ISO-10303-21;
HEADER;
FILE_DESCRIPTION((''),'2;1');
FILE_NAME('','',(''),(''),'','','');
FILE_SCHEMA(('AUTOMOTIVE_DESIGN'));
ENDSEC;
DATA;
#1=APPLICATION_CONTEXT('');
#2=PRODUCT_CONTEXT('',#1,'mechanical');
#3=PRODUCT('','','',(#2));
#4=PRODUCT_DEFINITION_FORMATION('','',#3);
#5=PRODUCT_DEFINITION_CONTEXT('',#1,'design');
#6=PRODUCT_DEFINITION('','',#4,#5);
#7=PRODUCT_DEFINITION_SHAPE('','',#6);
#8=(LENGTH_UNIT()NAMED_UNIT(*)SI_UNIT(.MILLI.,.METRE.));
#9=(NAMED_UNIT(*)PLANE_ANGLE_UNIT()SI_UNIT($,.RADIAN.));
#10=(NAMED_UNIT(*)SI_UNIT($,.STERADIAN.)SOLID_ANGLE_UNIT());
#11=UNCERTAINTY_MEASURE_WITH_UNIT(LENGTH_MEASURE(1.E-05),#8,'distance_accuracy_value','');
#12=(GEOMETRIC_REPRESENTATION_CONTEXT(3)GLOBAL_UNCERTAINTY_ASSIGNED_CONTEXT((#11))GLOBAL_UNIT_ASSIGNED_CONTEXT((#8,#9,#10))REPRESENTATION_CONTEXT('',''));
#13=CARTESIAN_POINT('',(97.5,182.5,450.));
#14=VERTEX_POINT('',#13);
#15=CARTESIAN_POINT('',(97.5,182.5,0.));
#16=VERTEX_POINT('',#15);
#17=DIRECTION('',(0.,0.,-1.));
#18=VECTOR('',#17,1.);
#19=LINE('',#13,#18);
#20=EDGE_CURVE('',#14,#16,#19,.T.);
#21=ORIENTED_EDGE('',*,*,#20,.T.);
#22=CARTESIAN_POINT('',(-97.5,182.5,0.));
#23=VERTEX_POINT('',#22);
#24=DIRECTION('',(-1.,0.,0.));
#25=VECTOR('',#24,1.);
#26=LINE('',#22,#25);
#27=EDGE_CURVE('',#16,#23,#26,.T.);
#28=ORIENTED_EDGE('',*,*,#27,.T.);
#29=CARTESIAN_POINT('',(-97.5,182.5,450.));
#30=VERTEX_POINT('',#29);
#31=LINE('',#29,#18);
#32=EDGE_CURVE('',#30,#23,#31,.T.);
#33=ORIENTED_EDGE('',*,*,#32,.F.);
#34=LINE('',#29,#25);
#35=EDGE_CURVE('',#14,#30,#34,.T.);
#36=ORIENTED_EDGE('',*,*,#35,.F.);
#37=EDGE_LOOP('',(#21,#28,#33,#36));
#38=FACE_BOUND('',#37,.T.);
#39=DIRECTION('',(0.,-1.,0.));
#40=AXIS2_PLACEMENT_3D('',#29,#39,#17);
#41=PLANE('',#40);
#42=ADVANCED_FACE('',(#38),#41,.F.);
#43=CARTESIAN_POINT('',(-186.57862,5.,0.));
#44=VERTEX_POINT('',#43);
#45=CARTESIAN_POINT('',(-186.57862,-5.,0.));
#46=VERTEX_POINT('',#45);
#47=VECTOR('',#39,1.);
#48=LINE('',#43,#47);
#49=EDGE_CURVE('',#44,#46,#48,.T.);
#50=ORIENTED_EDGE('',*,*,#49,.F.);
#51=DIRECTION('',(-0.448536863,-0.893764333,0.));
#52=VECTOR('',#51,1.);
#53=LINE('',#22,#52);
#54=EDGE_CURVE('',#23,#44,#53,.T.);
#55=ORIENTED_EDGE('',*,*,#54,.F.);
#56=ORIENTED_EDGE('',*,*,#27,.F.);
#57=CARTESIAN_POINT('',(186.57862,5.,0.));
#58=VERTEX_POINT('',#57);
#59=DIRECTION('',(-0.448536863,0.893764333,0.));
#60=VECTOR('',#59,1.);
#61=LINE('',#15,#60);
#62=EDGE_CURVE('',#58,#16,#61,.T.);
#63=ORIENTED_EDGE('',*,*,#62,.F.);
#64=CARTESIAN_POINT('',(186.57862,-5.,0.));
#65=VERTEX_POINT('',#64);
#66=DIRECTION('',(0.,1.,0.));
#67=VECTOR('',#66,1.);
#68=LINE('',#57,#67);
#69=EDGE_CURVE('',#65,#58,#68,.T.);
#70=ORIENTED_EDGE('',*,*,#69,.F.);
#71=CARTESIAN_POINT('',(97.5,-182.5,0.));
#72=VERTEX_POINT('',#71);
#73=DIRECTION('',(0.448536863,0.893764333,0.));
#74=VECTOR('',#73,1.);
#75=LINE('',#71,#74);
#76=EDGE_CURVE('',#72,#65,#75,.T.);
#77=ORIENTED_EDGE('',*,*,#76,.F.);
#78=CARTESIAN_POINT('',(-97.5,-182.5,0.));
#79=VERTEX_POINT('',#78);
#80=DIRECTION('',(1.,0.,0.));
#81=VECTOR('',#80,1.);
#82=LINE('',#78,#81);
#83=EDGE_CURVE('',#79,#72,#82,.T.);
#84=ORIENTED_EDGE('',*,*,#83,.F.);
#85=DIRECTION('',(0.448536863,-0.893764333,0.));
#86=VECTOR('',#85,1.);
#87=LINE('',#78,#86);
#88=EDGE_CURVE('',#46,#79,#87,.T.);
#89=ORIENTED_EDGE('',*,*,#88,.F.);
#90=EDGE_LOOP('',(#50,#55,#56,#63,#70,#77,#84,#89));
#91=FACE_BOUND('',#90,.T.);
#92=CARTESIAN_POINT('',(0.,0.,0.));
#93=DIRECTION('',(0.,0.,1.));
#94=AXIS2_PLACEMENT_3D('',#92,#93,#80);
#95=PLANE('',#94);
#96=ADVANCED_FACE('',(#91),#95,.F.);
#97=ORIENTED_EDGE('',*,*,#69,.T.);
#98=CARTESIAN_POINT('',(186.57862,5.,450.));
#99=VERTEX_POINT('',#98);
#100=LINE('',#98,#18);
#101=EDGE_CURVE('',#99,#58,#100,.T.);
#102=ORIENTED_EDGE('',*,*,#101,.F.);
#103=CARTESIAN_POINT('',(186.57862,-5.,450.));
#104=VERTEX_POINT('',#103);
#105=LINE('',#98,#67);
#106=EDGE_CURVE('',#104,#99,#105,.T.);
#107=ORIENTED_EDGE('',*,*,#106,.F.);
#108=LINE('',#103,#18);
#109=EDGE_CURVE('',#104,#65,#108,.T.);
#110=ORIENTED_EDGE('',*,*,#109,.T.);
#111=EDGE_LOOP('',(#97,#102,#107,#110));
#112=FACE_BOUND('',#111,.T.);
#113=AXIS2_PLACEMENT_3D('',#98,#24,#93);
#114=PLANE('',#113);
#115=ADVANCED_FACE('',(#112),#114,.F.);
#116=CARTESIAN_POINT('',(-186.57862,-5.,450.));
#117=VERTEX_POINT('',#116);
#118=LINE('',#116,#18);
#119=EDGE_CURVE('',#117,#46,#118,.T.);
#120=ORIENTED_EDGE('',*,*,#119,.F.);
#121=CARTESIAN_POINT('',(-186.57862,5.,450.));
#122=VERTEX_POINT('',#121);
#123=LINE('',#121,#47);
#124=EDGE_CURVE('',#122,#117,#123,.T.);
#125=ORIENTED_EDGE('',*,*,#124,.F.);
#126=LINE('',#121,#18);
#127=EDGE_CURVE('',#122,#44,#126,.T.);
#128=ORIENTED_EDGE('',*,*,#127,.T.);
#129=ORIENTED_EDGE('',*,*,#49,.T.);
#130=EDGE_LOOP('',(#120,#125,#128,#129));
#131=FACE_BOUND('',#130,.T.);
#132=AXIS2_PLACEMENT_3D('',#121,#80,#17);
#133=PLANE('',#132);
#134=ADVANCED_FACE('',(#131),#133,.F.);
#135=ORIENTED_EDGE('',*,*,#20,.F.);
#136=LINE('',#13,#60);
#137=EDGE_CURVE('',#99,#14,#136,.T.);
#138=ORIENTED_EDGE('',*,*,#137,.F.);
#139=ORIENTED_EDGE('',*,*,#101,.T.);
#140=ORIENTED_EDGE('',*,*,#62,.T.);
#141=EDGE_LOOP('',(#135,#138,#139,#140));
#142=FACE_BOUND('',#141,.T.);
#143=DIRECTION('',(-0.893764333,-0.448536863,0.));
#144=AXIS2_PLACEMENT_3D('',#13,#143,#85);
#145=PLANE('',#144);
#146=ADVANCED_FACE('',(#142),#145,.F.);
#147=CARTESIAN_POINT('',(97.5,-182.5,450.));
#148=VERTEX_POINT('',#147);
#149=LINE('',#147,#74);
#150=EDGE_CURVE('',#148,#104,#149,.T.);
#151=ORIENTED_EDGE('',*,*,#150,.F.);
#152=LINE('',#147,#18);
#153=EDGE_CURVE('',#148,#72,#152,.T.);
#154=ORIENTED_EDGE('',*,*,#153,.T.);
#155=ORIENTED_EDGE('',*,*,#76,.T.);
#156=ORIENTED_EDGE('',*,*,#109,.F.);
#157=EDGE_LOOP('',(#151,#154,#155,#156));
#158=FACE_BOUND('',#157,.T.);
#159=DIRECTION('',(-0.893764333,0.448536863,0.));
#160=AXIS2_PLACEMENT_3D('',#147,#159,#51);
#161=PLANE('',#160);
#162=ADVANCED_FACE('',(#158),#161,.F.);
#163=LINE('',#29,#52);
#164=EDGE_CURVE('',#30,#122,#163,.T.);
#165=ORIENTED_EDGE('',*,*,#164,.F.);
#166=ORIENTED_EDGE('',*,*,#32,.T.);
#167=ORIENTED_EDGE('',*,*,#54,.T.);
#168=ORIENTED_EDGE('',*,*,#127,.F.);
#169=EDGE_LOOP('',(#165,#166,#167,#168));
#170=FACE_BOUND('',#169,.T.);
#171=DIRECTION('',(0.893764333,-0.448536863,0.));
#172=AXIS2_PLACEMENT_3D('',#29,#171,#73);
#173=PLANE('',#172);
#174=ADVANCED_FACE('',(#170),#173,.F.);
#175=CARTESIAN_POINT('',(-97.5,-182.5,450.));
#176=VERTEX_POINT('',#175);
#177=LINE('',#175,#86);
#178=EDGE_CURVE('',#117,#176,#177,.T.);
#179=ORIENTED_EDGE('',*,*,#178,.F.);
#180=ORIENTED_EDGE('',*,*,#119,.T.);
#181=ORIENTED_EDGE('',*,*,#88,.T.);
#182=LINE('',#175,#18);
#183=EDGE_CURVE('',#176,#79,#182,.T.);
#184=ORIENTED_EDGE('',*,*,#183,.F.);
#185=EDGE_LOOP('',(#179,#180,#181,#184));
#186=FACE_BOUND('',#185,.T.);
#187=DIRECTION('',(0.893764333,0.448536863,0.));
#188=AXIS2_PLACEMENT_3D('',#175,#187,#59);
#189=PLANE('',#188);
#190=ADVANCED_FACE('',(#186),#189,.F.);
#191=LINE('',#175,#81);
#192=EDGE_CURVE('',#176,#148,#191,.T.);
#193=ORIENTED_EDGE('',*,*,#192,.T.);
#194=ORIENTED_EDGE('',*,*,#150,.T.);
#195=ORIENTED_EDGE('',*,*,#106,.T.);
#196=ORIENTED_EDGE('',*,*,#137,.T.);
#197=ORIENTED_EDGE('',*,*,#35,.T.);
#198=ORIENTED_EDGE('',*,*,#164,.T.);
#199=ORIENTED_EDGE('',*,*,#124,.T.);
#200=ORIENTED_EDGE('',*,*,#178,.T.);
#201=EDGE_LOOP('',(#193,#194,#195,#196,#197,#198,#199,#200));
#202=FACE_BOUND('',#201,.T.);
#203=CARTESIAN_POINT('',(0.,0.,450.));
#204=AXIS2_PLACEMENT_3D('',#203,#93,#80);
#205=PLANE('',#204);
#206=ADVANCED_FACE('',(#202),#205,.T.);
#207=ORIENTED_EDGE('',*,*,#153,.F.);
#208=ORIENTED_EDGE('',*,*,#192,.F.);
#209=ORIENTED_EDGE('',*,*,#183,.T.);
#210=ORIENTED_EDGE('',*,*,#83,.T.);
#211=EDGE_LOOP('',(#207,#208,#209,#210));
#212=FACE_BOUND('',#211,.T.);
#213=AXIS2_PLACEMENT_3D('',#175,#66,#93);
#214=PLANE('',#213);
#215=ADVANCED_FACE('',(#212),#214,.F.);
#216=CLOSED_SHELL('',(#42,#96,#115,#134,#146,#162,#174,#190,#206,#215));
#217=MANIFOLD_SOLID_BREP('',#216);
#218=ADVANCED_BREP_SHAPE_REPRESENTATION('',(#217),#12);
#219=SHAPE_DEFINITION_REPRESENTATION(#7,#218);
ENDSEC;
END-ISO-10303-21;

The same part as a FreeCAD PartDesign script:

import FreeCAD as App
import Part
import Sketcher
from FreeCAD import Vector
Q = App.Units.Quantity

doc = App.newDocument("Part")
body = doc.addObject("PartDesign::Body", "Body")

# Sketch on XY plane
sketch1 = doc.addObject("Sketcher::SketchObject", "Sketch")
body.addObject(sketch1)
sketch1.AttachmentSupport = (doc.XY_Plane, [""])
sketch1.MapMode = "FlatFace"
sketch1.addGeometry(Part.LineSegment(Vector(98, 182, 0), Vector(-98, 182, 0)), False)
sketch1.addGeometry(Part.LineSegment(Vector(-98, 182, 0), Vector(-187, 5, 0)), False)
sketch1.addGeometry(Part.LineSegment(Vector(-187, 5, 0), Vector(-187, -5, 0)), False)
sketch1.addGeometry(Part.LineSegment(Vector(-187, -5, 0), Vector(-98, -182, 0)), False)
sketch1.addGeometry(Part.LineSegment(Vector(-98, -182, 0), Vector(98, -182, 0)), False)
sketch1.addGeometry(Part.LineSegment(Vector(98, -182, 0), Vector(187, -5, 0)), False)
sketch1.addGeometry(Part.LineSegment(Vector(187, -5, 0), Vector(187, 5, 0)), False)
sketch1.addGeometry(Part.LineSegment(Vector(187, 5, 0), Vector(98, 182, 0)), False)
sketch1.addConstraint(Sketcher.Constraint("Coincident", 0, 2, 1, 1))
sketch1.addConstraint(Sketcher.Constraint("Coincident", 1, 2, 2, 1))
sketch1.addConstraint(Sketcher.Constraint("Coincident", 2, 2, 3, 1))
sketch1.addConstraint(Sketcher.Constraint("Coincident", 3, 2, 4, 1))
sketch1.addConstraint(Sketcher.Constraint("Coincident", 4, 2, 5, 1))
sketch1.addConstraint(Sketcher.Constraint("Coincident", 5, 2, 6, 1))
sketch1.addConstraint(Sketcher.Constraint("Coincident", 6, 2, 7, 1))
sketch1.addConstraint(Sketcher.Constraint("Coincident", 7, 2, 0, 1))
sketch1.addConstraint(Sketcher.Constraint("Horizontal", 0))
sketch1.addConstraint(Sketcher.Constraint("Vertical", 2))
sketch1.addConstraint(Sketcher.Constraint("Horizontal", 4))
sketch1.addConstraint(Sketcher.Constraint("Vertical", 6))
sketch1.addConstraint(Sketcher.Constraint("Symmetric", 0, 2, 4, 2, -1, 1))
sketch1.addConstraint(Sketcher.Constraint("Symmetric", 1, 2, 5, 2, -1, 1))
sketch1.addConstraint(Sketcher.Constraint("Parallel", 3, 7))
sketch1.addConstraint(Sketcher.Constraint("Horizontal", 2, 2, 5, 2))
sketch1.addConstraint(Sketcher.Constraint("Horizontal", 1, 2, 6, 2))
sketch1.addConstraint(Sketcher.Constraint("Vertical", 0, 2, 3, 2))
sketch1.addConstraint(Sketcher.Constraint("DistanceX", 0, 2, 0, 1, Q("195 mm")))
sketch1.addConstraint(Sketcher.Constraint("DistanceY", 2, 2, 2, 1, Q("10 mm")))
sketch1.addConstraint(Sketcher.Constraint("DistanceY", 3, 2, 0, 2, Q("365 mm")))
sketch1.addConstraint(Sketcher.Constraint("DistanceX", 1, 2, -1, 1, Q("186.57862 mm")))
pad1 = doc.addObject("PartDesign::Pad", "Pad")
body.addObject(pad1)
pad1.Profile = sketch1
pad1.Length = 450

doc.recompute()
